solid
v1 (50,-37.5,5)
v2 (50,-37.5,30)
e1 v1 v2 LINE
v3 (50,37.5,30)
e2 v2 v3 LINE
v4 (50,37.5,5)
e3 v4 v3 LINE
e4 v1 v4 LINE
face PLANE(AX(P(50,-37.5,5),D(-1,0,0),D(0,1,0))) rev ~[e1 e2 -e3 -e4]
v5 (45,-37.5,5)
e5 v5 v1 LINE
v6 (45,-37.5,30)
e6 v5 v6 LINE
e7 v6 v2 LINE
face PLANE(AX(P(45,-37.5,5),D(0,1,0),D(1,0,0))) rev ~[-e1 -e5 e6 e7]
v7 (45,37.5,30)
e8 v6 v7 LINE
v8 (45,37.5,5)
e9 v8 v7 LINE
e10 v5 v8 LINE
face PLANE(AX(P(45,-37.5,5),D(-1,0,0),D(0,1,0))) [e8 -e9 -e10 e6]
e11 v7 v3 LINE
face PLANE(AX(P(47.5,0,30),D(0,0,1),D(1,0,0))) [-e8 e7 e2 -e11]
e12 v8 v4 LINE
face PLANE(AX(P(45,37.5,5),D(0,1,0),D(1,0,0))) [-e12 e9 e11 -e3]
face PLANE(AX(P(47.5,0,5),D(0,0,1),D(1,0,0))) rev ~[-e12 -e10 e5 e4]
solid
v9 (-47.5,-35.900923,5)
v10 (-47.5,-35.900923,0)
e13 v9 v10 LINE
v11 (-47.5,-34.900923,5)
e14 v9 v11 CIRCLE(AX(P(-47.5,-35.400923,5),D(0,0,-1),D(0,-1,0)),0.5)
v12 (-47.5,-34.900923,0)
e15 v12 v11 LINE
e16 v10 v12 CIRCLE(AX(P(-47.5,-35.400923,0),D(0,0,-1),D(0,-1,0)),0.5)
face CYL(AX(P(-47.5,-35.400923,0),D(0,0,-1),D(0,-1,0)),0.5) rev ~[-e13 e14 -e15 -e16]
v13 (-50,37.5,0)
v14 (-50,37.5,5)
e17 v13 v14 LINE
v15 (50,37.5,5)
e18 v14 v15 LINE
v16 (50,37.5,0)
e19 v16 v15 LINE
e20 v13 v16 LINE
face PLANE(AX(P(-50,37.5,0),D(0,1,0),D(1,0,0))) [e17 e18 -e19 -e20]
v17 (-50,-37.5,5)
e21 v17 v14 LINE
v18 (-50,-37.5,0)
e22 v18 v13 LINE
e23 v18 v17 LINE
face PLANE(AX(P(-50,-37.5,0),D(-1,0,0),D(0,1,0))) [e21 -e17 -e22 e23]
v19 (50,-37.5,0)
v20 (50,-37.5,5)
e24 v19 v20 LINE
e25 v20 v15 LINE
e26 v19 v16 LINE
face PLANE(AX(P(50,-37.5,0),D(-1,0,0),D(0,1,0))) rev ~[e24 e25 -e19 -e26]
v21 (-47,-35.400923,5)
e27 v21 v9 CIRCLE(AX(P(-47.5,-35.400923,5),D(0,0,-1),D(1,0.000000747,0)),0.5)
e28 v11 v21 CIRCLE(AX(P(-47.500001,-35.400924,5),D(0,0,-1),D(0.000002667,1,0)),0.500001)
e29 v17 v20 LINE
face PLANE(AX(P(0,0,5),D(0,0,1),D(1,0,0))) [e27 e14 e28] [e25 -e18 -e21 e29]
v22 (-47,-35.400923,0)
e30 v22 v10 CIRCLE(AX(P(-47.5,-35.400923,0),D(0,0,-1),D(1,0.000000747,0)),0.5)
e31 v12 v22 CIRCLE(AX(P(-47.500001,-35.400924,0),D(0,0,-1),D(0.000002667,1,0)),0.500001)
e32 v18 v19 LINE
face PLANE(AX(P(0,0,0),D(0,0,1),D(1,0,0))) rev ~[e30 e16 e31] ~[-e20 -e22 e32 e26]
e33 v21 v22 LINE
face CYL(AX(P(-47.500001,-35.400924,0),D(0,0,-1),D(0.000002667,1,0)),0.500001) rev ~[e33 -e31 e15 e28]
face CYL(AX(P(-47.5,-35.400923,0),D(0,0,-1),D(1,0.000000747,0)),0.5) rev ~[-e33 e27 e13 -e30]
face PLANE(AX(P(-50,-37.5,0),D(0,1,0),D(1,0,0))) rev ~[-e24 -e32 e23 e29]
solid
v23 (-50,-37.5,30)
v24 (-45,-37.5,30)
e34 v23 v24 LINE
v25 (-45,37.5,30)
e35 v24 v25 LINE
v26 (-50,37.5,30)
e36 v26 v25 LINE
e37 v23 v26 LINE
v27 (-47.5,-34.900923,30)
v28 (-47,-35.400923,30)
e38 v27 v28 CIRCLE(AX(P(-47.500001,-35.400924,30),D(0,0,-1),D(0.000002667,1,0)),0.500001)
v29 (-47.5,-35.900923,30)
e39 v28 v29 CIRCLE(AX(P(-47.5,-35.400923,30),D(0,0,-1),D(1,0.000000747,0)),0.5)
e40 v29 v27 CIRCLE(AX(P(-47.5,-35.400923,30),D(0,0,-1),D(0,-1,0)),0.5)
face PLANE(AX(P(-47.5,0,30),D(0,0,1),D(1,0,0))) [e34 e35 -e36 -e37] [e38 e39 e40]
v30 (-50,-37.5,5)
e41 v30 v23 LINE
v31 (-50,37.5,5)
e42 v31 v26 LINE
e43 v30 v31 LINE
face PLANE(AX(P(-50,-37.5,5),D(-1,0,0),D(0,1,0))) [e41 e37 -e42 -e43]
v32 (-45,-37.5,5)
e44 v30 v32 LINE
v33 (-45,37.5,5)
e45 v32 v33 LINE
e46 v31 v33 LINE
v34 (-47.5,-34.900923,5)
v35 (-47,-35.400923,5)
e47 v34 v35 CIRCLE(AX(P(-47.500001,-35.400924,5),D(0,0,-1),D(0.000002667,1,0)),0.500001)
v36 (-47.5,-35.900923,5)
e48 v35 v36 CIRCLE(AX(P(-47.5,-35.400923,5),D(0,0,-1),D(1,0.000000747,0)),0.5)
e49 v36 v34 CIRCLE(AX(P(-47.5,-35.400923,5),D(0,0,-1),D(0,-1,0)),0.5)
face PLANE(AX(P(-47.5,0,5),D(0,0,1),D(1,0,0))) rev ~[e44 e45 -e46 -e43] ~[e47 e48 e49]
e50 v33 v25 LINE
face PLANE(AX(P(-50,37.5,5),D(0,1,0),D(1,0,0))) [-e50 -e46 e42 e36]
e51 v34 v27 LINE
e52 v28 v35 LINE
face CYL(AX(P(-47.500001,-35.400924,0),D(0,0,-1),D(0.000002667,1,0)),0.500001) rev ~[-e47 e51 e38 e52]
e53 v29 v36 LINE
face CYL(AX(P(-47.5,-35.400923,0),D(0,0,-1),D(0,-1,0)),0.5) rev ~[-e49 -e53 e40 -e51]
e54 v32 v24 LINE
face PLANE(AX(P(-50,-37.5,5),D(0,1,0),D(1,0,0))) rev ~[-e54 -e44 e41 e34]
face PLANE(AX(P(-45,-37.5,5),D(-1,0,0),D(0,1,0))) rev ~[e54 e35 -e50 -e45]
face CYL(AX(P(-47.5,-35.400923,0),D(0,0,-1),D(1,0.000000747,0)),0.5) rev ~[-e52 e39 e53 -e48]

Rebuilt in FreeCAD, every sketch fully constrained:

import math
import FreeCAD as App
import Part
import Sketcher
from FreeCAD import Vector
Q = App.Units.Quantity

doc = App.newDocument("Part")
body = doc.addObject("PartDesign::Body", "Body")

# Sketch on XY plane
sketch1 = doc.addObject("Sketcher::SketchObject", "Sketch")
body.addObject(sketch1)
sketch1.AttachmentSupport = (doc.XY_Plane, [""])
sketch1.MapMode = "FlatFace"
sketch1.addGeometry([
    Part.LineSegment(Vector(-50, 38, 0), Vector(-50, -38, 0)),
    Part.LineSegment(Vector(-50, -38, 0), Vector(50, -38, 0)),
    Part.LineSegment(Vector(50, -38, 0), Vector(50, 38, 0)),
    Part.LineSegment(Vector(50, 38, 0), Vector(-50, 38, 0)),
], False)
sketch1.addConstraint([
    Sketcher.Constraint("Coincident", 0, 2, 1, 1),
    Sketcher.Constraint("Coincident", 1, 2, 2, 1),
    Sketcher.Constraint("Coincident", 2, 2, 3, 1),
    Sketcher.Constraint("Coincident", 3, 2, 0, 1),
    Sketcher.Constraint("Vertical", 0),
    Sketcher.Constraint("Horizontal", 1),
    Sketcher.Constraint("Vertical", 2),
    Sketcher.Constraint("Horizontal", 3),
    Sketcher.Constraint("Symmetric", 0, 2, 2, 2, -1, 1),
    Sketcher.Constraint("DistanceX", 1, 1, 1, 2, Q("100 mm")),
    Sketcher.Constraint("DistanceY", 0, 2, 0, 1, Q("75 mm")),
])
pad1 = doc.addObject("PartDesign::Pad", "Pad")
body.addObject(pad1)
pad1.Profile = sketch1
pad1.Length = 5
body2 = doc.addObject("PartDesign::Body", "Body001")
body2.AllowCompound = True

# Sketch on XY plane
sketch2 = doc.addObject("Sketcher::SketchObject", "Sketch001")
body2.addObject(sketch2)
sketch2.AttachmentSupport = (doc.getObject("XY_Plane001"), [""])
sketch2.MapMode = "FlatFace"
sketch2.AttachmentOffset = App.Placement(Vector(0, 0, 5), App.Rotation())
sketch2.addGeometry([
    Part.LineSegment(Vector(-50, 38, 0), Vector(-50, -38, 0)),  # 0
    Part.LineSegment(Vector(-50, -38, 0), Vector(-45, -38, 0)),  # 1
    Part.LineSegment(Vector(-45, -38, 0), Vector(-45, 38, 0)),  # 2
    Part.LineSegment(Vector(-45, 38, 0), Vector(-50, 38, 0)),  # 3
    Part.LineSegment(Vector(45, 38, 0), Vector(45, -38, 0)),  # 4
    Part.LineSegment(Vector(45, -38, 0), Vector(50, -38, 0)),  # 5
    Part.LineSegment(Vector(50, -38, 0), Vector(50, 38, 0)),  # 6
    Part.LineSegment(Vector(50, 38, 0), Vector(45, 38, 0)),  # 7
], False)
sketch2.addConstraint([
    Sketcher.Constraint("Coincident", 0, 2, 1, 1),
    Sketcher.Constraint("Coincident", 1, 2, 2, 1),
    Sketcher.Constraint("Coincident", 2, 2, 3, 1),
    Sketcher.Constraint("Coincident", 3, 2, 0, 1),
    Sketcher.Constraint("Coincident", 4, 2, 5, 1),
    Sketcher.Constraint("Coincident", 5, 2, 6, 1),
    Sketcher.Constraint("Coincident", 6, 2, 7, 1),
    Sketcher.Constraint("Coincident", 7, 2, 4, 1),
    Sketcher.Constraint("Vertical", 0),
    Sketcher.Constraint("Horizontal", 1),
    Sketcher.Constraint("Vertical", 2),
    Sketcher.Constraint("Horizontal", 3),
    Sketcher.Constraint("Vertical", 4),
    Sketcher.Constraint("Horizontal", 5),
    Sketcher.Constraint("Vertical", 6),
    Sketcher.Constraint("Horizontal", 7),
    Sketcher.Constraint("Symmetric", 2, 2, 4, 2, -1, 1),
    Sketcher.Constraint("Symmetric", 0, 2, 6, 2, -1, 1),
    Sketcher.Constraint("Horizontal", 1, 2, 4, 2),
    Sketcher.Constraint("DistanceX", 1, 1, 1, 2, Q("5 mm")),
    Sketcher.Constraint("DistanceY", 0, 2, 0, 1, Q("75 mm")),
    Sketcher.Constraint("DistanceX", 0, 2, -1, 1, Q("50 mm")),
])
pad2 = doc.addObject("PartDesign::Pad", "Pad001")
body2.addObject(pad2)
pad2.Profile = sketch2
pad2.Length = 25
body3 = doc.addObject("PartDesign::Body", "Body002")

# Sketch on XY plane
sketch3 = doc.addObject("Sketcher::SketchObject", "Sketch002")
body3.addObject(sketch3)
sketch3.AttachmentSupport = (doc.getObject("XY_Plane002"), [""])
sketch3.MapMode = "FlatFace"
sketch3.addGeometry([
    Part.ArcOfCircle(Part.Circle(Vector(-47.5, -35.4, 0), Vector(0, 0, 1), 0.5), math.radians(0), math.radians(90)),
    Part.ArcOfCircle(Part.Circle(Vector(-47.5, -35.4, 0), Vector(0, 0, 1), 0.5), math.radians(-90), math.radians(0)),
    Part.ArcOfCircle(Part.Circle(Vector(-47.5, -35.4, 0), Vector(0, 0, 1), 0.5), math.radians(90), math.radians(270)),
], False)
sketch3.addConstraint([
    Sketcher.Constraint("Tangent", 0, 1, 1, 2),
    Sketcher.Constraint("Tangent", 1, 1, 2, 2),
    Sketcher.Constraint("Coincident", 2, 1, 0, 2),
    Sketcher.Constraint("Equal", 0, 1),
    Sketcher.Constraint("Horizontal", 2, 3, 0, 1),
    Sketcher.Constraint("Vertical", 2, 3, 1, 1),
    Sketcher.Constraint("Vertical", 1, 1, 2, 1),
    Sketcher.Constraint("Radius", 0, Q("0.500001 mm")),
    Sketcher.Constraint("DistanceX", 0, 1, -1, 1, Q("47 mm")),
    Sketcher.Constraint("DistanceY", 0, 3, -1, 1, Q("35.400924 mm")),
])
pad3 = doc.addObject("PartDesign::Pad", "Pad002")
body3.addObject(pad3)
pad3.Profile = sketch3
pad3.Length = 100
pad4 = doc.addObject("PartDesign::Pad", "Pad003")
body3.addObject(pad4)
pad4.Profile = sketch3
pad4.Length = 25
doc.recompute()

body4 = doc.addObject("PartDesign::Body", "Body003")
body4.BaseFeature = body3
boolean = doc.addObject("PartDesign::Boolean", "Boolean")
body.addObject(boolean)
boolean.Type = "Cut"
boolean.addObjects([body4])
doc.recompute()
body2.AllowCompound = True
doc.recompute()

boolean2 = doc.addObject("PartDesign::Boolean", "Boolean001")
body2.addObject(boolean2)
boolean2.Type = "Cut"
boolean2.addObjects([body3])

doc.recompute()
